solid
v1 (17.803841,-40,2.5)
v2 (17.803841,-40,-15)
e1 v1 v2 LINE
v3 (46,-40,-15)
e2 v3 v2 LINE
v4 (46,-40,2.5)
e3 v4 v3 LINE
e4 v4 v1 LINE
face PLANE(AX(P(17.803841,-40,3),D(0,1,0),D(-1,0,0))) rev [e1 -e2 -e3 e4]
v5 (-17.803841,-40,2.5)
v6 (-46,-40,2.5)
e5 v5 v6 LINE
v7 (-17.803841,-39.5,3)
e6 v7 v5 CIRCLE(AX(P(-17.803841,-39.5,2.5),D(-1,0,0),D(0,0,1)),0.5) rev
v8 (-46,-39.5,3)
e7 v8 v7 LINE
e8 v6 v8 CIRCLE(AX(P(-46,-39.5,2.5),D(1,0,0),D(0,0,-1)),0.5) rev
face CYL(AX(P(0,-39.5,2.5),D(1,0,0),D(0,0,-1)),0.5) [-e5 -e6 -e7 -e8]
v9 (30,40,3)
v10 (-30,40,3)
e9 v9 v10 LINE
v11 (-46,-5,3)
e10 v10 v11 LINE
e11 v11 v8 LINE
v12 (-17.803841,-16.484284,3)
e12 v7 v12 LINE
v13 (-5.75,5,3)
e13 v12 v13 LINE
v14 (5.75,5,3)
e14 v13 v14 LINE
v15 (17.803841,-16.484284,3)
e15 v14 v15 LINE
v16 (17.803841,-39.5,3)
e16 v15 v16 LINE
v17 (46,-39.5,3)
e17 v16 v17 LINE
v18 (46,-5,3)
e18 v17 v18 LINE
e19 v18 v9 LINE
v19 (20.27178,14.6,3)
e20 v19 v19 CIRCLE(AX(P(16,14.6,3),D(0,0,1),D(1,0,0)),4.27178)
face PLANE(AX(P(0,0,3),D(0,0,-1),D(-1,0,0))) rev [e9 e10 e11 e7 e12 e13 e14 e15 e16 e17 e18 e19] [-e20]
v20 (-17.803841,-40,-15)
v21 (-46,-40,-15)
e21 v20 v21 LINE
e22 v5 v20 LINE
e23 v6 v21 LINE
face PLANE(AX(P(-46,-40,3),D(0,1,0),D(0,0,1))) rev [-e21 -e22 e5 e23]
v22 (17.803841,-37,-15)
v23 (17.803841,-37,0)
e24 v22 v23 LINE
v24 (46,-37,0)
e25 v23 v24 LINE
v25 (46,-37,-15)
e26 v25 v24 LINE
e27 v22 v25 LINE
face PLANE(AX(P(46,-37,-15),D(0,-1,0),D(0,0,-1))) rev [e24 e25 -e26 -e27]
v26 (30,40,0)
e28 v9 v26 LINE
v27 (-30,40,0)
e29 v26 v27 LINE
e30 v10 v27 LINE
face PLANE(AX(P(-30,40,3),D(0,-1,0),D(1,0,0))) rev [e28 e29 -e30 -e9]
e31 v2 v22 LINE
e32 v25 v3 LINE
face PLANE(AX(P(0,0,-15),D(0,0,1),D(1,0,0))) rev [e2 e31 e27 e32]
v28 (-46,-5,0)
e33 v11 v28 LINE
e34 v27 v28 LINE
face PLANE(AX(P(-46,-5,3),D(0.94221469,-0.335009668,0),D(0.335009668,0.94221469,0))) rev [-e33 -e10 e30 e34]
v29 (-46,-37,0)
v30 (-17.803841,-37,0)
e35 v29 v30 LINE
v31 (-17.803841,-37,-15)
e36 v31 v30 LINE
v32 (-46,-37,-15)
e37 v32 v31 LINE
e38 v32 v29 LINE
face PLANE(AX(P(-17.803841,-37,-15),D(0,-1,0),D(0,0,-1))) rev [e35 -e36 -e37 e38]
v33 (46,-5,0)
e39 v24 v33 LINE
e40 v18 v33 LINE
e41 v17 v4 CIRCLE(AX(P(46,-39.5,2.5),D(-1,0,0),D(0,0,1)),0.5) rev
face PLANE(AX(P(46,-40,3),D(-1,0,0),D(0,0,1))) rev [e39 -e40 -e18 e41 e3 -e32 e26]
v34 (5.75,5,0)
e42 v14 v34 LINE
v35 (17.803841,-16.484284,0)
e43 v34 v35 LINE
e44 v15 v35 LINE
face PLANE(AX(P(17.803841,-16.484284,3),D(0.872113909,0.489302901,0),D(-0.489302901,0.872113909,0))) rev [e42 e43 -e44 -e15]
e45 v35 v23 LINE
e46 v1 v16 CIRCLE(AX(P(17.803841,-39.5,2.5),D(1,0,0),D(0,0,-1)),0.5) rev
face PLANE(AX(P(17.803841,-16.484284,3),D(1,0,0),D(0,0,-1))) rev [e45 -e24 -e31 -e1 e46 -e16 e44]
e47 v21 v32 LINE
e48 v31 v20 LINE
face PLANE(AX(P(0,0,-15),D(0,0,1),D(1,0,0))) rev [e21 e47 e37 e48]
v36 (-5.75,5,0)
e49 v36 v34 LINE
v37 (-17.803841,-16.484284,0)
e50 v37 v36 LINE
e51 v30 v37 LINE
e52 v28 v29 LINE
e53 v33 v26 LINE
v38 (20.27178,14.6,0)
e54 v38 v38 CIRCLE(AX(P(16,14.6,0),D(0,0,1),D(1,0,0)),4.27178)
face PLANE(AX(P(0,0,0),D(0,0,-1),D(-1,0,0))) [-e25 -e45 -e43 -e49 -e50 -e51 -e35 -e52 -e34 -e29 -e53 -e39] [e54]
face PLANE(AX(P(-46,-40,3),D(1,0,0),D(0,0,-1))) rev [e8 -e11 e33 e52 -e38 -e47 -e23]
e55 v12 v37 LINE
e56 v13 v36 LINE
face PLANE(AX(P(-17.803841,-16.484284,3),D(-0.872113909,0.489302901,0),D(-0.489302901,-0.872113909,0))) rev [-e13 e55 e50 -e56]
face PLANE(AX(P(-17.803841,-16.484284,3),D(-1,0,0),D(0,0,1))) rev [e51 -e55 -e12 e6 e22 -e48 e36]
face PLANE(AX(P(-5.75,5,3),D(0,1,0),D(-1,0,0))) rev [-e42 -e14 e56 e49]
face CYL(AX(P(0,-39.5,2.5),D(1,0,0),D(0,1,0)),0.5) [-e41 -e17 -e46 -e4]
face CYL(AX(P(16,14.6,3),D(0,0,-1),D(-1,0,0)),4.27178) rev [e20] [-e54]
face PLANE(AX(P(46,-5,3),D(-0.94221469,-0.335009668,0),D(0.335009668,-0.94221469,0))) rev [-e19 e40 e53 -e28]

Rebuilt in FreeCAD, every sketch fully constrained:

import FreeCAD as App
import Part
import Sketcher

V = App.Vector


def edges_at(feature, points):
    """Names of the edges that pass closest to the given points."""
    edges = feature.Shape.Edges
    near = lambda p: min(range(len(edges)), key=lambda i: edges[i].distToShape(Part.Vertex(*p))[0])
    return sorted({f"Edge{near(p) + 1}" for p in points})


def add_polygon(sketch, points):
    """Adds a closed chain of lines whose ends are joined by coincident constraints."""
    first, n = sketch.GeometryCount, len(points)
    for a, b in zip(points, points[1:] + points[:1]):
        sketch.addGeometry(Part.LineSegment(App.Vector(*a, 0), App.Vector(*b, 0)), False)
    for i in range(n):
        sketch.addConstraint(Sketcher.Constraint("Coincident", first + i, 2, first + (i + 1) % n, 1))

doc = App.newDocument("Part")
body = doc.addObject("PartDesign::Body", "Body")

# Sketch on XY plane
sketch1 = doc.addObject("Sketcher::SketchObject", "Sketch")
body.addObject(sketch1)
sketch1.AttachmentSupport = (doc.XY_Plane, [""])
sketch1.MapMode = "FlatFace"
add_polygon(sketch1, [(-46, -5), (-46, -40), (-17.8, -40), (-17.8, -16.5), (-5.8, 5), (5.8, 5), (17.8, -16.5), (17.8, -40), (46, -40), (46, -5), (30, 40), (-30, 40)])  # lines 0-11
sketch1.addGeometry(Part.Circle(V(16, 14.6, 0), V(0, 0, 1), 4.3), False)  # 12
sketch1.addConstraint([
    Sketcher.Constraint("Vertical", 0),
    Sketcher.Constraint("Horizontal", 1),
    Sketcher.Constraint("Vertical", 2),
    Sketcher.Constraint("Horizontal", 4),
    Sketcher.Constraint("Vertical", 6),
    Sketcher.Constraint("Horizontal", 7),
    Sketcher.Constraint("Vertical", 8),
    Sketcher.Constraint("Horizontal", 10),
    Sketcher.Constraint("Symmetric", 2, 2, 5, 2, -2),
    Sketcher.Constraint("Symmetric", 0, 2, 7, 2, -2),
    Sketcher.Constraint("Horizontal", 8, 2, 11, 2),
    Sketcher.Constraint("Equal", 3, 5),
    Sketcher.Constraint("Equal", 9, 11),
    Sketcher.Constraint("DistanceX", 10, 2, 10, 1, 60.0),
    Sketcher.Constraint("DistanceY", 0, 2, 0, 1, 35.0),
    Sketcher.Constraint("DistanceX", 4, 1, 4, 2, 11.5),
    Sketcher.Constraint("DistanceX", -1, 1, 12, 3, 16.0),
    Sketcher.Constraint("DistanceX", 0, 2, -1, 1, 46.0),
    Sketcher.Constraint("DistanceY", 0, 2, -1, 1, 40.0),
    Sketcher.Constraint("DistanceY", -1, 1, 3, 2, 5.0),
    Sketcher.Constraint("DistanceY", -1, 1, 9, 2, 40.0),
    Sketcher.Constraint("DistanceY", -1, 1, 12, 3, 14.6),
    Sketcher.Constraint("Diameter", 12, 8.543561),
    Sketcher.Constraint("DistanceX", 1, 1, 1, 2, 28.196159),
    Sketcher.Constraint("DistanceY", 2, 1, 2, 2, 23.515716),
])
pad1 = doc.addObject("PartDesign::Pad", "Pad")
body.addObject(pad1)
pad1.Profile = sketch1
pad1.Length = 3

# Sketch on XY plane
sketch2 = doc.addObject("Sketcher::SketchObject", "Sketch001")
body.addObject(sketch2)
sketch2.AttachmentSupport = (doc.XY_Plane, [""])
sketch2.MapMode = "FlatFace"
add_polygon(sketch2, [(46, -37), (46, -40), (17.8, -40), (17.8, -37)])  # lines 0-3
add_polygon(sketch2, [(-17.8, -37), (-17.8, -40), (-46, -40), (-46, -37)])  # lines 4-7
sketch2.addConstraint([
    Sketcher.Constraint("Vertical", 0),
    Sketcher.Constraint("Horizontal", 1),
    Sketcher.Constraint("Vertical", 2),
    Sketcher.Constraint("Horizontal", 3),
    Sketcher.Constraint("Vertical", 4),
    Sketcher.Constraint("Horizontal", 5),
    Sketcher.Constraint("Vertical", 6),
    Sketcher.Constraint("Horizontal", 7),
    Sketcher.Constraint("Symmetric", 1, 2, 4, 2, -2),
    Sketcher.Constraint("Symmetric", 3, 2, 6, 2, -2),
    Sketcher.Constraint("DistanceY", 0, 2, 0, 1, 3.0),
    Sketcher.Constraint("DistanceX", -1, 1, 0, 2, 46.0),
    Sketcher.Constraint("DistanceY", 0, 2, -1, 1, 40.0),
    Sketcher.Constraint("DistanceX", 1, 2, 1, 1, 28.196159),
])
pad2 = doc.addObject("PartDesign::Pad", "Pad001")
body.addObject(pad2)
pad2.Profile = sketch2
pad2.Length = 15
pad2.Reversed = True
doc.recompute()

fillet = doc.addObject("PartDesign::Fillet", "Fillet")
body.addObject(fillet)
fillet.Base = (pad2, edges_at(pad2, [(-31.902, -40, 3), (31.902, -40, 3)]))
fillet.Radius = 0.5

doc.recompute()
